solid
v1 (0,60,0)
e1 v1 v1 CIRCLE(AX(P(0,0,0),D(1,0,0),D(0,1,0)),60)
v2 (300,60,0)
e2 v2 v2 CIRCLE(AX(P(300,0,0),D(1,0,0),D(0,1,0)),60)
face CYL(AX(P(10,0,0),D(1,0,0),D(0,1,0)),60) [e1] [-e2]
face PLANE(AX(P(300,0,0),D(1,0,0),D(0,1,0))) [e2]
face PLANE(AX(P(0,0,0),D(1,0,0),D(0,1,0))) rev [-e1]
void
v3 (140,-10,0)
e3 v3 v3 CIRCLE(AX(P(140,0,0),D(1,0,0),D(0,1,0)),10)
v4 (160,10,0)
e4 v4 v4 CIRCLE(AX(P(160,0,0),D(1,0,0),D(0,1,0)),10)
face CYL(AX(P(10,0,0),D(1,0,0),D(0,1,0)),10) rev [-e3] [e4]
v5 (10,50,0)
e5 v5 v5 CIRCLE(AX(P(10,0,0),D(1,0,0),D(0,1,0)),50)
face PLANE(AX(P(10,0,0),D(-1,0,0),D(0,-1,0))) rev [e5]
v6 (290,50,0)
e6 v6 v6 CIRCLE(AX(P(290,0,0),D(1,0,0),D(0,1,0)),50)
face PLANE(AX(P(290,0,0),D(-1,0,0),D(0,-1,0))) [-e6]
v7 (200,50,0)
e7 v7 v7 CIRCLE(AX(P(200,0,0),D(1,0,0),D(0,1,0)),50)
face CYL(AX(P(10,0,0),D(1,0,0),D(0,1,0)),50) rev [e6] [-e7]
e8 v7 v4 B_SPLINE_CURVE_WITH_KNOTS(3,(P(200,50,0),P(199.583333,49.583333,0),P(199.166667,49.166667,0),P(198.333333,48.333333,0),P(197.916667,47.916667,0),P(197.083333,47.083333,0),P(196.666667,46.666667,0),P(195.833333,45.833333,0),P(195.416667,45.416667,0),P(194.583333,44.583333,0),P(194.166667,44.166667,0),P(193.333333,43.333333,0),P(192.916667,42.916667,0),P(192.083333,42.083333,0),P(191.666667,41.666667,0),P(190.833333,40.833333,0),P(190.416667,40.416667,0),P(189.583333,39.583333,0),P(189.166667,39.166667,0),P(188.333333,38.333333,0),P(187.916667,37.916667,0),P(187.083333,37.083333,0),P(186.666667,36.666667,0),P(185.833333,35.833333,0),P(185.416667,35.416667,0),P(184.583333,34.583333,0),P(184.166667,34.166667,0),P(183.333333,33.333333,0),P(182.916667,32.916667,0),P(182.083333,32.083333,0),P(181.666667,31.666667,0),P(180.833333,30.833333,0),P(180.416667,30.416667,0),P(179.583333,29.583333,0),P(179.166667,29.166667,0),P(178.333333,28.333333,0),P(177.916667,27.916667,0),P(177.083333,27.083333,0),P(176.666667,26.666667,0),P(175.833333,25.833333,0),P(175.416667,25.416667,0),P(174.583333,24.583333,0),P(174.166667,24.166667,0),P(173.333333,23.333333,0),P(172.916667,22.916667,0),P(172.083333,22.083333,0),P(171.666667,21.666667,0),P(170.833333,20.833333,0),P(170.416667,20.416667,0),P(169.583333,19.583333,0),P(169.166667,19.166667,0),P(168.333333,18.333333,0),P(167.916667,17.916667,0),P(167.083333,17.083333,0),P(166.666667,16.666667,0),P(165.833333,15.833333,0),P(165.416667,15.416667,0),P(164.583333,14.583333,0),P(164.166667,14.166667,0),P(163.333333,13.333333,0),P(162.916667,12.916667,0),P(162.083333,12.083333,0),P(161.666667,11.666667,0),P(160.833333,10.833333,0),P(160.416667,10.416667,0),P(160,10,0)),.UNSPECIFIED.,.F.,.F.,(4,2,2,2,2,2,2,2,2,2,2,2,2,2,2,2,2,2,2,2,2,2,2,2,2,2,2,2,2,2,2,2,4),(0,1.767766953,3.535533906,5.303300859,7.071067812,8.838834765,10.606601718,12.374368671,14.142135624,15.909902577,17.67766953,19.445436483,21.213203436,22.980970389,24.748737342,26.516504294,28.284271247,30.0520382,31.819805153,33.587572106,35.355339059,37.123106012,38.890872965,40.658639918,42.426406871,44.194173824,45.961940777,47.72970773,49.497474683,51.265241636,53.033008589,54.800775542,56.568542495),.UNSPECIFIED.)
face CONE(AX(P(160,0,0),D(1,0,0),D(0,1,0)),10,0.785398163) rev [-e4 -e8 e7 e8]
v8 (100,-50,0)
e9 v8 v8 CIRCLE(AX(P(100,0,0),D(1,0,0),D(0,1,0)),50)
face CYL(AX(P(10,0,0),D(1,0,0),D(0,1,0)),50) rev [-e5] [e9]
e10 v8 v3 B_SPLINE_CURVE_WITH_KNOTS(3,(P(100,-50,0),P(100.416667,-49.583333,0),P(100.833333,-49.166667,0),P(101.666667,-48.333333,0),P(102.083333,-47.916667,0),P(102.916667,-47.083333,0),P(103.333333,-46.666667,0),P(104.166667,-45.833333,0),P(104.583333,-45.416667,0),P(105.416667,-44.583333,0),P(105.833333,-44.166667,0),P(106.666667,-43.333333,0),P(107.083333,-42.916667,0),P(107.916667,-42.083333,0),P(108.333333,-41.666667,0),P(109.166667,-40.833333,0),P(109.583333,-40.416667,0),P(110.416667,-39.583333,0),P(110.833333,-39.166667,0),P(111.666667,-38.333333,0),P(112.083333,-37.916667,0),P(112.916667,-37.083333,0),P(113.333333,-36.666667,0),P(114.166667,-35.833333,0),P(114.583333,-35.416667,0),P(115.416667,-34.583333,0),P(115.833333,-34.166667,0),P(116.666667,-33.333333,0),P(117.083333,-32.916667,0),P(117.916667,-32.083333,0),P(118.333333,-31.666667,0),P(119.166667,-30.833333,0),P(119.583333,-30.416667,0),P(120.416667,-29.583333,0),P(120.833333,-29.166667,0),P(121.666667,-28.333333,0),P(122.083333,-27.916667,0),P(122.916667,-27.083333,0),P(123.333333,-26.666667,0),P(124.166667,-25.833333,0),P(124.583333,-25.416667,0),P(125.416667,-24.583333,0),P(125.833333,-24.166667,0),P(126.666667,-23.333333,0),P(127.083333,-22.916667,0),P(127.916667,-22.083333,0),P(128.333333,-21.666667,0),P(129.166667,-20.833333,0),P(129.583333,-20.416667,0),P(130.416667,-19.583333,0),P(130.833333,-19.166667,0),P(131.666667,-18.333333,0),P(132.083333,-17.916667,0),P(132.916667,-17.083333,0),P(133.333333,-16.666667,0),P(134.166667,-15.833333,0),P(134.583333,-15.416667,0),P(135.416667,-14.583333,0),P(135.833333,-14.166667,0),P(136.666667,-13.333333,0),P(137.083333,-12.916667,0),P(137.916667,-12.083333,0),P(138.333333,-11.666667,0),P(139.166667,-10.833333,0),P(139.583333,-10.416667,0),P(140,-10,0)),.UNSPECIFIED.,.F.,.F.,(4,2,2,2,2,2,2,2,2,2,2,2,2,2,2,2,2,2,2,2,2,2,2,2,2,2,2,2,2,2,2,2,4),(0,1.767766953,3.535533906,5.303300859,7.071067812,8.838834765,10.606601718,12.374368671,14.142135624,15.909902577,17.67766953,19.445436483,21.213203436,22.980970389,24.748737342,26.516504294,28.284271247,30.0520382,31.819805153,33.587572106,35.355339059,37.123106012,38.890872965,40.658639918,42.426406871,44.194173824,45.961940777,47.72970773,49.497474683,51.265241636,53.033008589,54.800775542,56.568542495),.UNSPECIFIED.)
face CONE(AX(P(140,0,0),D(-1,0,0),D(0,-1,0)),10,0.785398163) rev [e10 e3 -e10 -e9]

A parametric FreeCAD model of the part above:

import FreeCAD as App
import Part
import Sketcher

V = App.Vector
Q = App.Units.Quantity


def add_polygon(sketch, points):
    """Adds a closed chain of lines whose ends are joined by coincident constraints."""
    first, n = sketch.GeometryCount, len(points)
    for a, b in zip(points, points[1:] + points[:1]):
        sketch.addGeometry(Part.LineSegment(App.Vector(*a, 0), App.Vector(*b, 0)), False)
    for i in range(n):
        sketch.addConstraint(Sketcher.Constraint("Coincident", first + i, 2, first + (i + 1) % n, 1))

doc = App.newDocument("Part")
body = doc.addObject("PartDesign::Body", "Body")

# Sketch on XY plane
sketch1 = body.newObject("Sketcher::SketchObject", "Sketch")
sketch1.AttachmentSupport = (doc.getObject("XY_Plane"), [""])
sketch1.MapMode = "FlatFace"
add_polygon(sketch1, [(10, 0), (0, 0), (0, -60), (300, -60), (300, 0), (290, 0), (290, -50), (200, -50), (160, -10), (140, -10), (100, -50), (10, -50)])  # lines 0-11
sketch1.addConstraint([
    Sketcher.Constraint("Horizontal", 0),
    Sketcher.Constraint("Vertical", 1),
    Sketcher.Constraint("Horizontal", 2),
    Sketcher.Constraint("Vertical", 3),
    Sketcher.Constraint("Horizontal", 4),
    Sketcher.Constraint("Vertical", 5),
    Sketcher.Constraint("Horizontal", 6),
    Sketcher.Constraint("Horizontal", 8),
    Sketcher.Constraint("Horizontal", 10),
    Sketcher.Constraint("Vertical", 11),
    Sketcher.Constraint("Coincident", 0, 2, -1, 1),
    Sketcher.Constraint("PointOnObject", 3, 2, -1),
    Sketcher.Constraint("Perpendicular", 7, 9),
    Sketcher.Constraint("Horizontal", 6, 2, 9, 2),
    Sketcher.Constraint("Equal", 0, 4),
    Sketcher.Constraint("Equal", 6, 10),
    Sketcher.Constraint("Equal", 7, 9),
    Sketcher.Constraint("DistanceX", 0, 2, 0, 1, Q("10 mm")),
    Sketcher.Constraint("DistanceX", 2, 1, 2, 2, Q("300 mm")),
    Sketcher.Constraint("DistanceX", 6, 2, 6, 1, Q("90 mm")),
    Sketcher.Constraint("DistanceX", 8, 2, 8, 1, Q("20 mm")),
    Sketcher.Constraint("DistanceY", 1, 2, 1, 1, Q("60 mm")),
    Sketcher.Constraint("DistanceY", 5, 2, 5, 1, Q("50 mm")),
])
revolution = body.newObject("PartDesign::Revolution", "Revolution")
revolution.Profile = sketch1
revolution.ReferenceAxis = (sketch1, ["H_Axis"])
revolution.Angle = 360

doc.recompute()
